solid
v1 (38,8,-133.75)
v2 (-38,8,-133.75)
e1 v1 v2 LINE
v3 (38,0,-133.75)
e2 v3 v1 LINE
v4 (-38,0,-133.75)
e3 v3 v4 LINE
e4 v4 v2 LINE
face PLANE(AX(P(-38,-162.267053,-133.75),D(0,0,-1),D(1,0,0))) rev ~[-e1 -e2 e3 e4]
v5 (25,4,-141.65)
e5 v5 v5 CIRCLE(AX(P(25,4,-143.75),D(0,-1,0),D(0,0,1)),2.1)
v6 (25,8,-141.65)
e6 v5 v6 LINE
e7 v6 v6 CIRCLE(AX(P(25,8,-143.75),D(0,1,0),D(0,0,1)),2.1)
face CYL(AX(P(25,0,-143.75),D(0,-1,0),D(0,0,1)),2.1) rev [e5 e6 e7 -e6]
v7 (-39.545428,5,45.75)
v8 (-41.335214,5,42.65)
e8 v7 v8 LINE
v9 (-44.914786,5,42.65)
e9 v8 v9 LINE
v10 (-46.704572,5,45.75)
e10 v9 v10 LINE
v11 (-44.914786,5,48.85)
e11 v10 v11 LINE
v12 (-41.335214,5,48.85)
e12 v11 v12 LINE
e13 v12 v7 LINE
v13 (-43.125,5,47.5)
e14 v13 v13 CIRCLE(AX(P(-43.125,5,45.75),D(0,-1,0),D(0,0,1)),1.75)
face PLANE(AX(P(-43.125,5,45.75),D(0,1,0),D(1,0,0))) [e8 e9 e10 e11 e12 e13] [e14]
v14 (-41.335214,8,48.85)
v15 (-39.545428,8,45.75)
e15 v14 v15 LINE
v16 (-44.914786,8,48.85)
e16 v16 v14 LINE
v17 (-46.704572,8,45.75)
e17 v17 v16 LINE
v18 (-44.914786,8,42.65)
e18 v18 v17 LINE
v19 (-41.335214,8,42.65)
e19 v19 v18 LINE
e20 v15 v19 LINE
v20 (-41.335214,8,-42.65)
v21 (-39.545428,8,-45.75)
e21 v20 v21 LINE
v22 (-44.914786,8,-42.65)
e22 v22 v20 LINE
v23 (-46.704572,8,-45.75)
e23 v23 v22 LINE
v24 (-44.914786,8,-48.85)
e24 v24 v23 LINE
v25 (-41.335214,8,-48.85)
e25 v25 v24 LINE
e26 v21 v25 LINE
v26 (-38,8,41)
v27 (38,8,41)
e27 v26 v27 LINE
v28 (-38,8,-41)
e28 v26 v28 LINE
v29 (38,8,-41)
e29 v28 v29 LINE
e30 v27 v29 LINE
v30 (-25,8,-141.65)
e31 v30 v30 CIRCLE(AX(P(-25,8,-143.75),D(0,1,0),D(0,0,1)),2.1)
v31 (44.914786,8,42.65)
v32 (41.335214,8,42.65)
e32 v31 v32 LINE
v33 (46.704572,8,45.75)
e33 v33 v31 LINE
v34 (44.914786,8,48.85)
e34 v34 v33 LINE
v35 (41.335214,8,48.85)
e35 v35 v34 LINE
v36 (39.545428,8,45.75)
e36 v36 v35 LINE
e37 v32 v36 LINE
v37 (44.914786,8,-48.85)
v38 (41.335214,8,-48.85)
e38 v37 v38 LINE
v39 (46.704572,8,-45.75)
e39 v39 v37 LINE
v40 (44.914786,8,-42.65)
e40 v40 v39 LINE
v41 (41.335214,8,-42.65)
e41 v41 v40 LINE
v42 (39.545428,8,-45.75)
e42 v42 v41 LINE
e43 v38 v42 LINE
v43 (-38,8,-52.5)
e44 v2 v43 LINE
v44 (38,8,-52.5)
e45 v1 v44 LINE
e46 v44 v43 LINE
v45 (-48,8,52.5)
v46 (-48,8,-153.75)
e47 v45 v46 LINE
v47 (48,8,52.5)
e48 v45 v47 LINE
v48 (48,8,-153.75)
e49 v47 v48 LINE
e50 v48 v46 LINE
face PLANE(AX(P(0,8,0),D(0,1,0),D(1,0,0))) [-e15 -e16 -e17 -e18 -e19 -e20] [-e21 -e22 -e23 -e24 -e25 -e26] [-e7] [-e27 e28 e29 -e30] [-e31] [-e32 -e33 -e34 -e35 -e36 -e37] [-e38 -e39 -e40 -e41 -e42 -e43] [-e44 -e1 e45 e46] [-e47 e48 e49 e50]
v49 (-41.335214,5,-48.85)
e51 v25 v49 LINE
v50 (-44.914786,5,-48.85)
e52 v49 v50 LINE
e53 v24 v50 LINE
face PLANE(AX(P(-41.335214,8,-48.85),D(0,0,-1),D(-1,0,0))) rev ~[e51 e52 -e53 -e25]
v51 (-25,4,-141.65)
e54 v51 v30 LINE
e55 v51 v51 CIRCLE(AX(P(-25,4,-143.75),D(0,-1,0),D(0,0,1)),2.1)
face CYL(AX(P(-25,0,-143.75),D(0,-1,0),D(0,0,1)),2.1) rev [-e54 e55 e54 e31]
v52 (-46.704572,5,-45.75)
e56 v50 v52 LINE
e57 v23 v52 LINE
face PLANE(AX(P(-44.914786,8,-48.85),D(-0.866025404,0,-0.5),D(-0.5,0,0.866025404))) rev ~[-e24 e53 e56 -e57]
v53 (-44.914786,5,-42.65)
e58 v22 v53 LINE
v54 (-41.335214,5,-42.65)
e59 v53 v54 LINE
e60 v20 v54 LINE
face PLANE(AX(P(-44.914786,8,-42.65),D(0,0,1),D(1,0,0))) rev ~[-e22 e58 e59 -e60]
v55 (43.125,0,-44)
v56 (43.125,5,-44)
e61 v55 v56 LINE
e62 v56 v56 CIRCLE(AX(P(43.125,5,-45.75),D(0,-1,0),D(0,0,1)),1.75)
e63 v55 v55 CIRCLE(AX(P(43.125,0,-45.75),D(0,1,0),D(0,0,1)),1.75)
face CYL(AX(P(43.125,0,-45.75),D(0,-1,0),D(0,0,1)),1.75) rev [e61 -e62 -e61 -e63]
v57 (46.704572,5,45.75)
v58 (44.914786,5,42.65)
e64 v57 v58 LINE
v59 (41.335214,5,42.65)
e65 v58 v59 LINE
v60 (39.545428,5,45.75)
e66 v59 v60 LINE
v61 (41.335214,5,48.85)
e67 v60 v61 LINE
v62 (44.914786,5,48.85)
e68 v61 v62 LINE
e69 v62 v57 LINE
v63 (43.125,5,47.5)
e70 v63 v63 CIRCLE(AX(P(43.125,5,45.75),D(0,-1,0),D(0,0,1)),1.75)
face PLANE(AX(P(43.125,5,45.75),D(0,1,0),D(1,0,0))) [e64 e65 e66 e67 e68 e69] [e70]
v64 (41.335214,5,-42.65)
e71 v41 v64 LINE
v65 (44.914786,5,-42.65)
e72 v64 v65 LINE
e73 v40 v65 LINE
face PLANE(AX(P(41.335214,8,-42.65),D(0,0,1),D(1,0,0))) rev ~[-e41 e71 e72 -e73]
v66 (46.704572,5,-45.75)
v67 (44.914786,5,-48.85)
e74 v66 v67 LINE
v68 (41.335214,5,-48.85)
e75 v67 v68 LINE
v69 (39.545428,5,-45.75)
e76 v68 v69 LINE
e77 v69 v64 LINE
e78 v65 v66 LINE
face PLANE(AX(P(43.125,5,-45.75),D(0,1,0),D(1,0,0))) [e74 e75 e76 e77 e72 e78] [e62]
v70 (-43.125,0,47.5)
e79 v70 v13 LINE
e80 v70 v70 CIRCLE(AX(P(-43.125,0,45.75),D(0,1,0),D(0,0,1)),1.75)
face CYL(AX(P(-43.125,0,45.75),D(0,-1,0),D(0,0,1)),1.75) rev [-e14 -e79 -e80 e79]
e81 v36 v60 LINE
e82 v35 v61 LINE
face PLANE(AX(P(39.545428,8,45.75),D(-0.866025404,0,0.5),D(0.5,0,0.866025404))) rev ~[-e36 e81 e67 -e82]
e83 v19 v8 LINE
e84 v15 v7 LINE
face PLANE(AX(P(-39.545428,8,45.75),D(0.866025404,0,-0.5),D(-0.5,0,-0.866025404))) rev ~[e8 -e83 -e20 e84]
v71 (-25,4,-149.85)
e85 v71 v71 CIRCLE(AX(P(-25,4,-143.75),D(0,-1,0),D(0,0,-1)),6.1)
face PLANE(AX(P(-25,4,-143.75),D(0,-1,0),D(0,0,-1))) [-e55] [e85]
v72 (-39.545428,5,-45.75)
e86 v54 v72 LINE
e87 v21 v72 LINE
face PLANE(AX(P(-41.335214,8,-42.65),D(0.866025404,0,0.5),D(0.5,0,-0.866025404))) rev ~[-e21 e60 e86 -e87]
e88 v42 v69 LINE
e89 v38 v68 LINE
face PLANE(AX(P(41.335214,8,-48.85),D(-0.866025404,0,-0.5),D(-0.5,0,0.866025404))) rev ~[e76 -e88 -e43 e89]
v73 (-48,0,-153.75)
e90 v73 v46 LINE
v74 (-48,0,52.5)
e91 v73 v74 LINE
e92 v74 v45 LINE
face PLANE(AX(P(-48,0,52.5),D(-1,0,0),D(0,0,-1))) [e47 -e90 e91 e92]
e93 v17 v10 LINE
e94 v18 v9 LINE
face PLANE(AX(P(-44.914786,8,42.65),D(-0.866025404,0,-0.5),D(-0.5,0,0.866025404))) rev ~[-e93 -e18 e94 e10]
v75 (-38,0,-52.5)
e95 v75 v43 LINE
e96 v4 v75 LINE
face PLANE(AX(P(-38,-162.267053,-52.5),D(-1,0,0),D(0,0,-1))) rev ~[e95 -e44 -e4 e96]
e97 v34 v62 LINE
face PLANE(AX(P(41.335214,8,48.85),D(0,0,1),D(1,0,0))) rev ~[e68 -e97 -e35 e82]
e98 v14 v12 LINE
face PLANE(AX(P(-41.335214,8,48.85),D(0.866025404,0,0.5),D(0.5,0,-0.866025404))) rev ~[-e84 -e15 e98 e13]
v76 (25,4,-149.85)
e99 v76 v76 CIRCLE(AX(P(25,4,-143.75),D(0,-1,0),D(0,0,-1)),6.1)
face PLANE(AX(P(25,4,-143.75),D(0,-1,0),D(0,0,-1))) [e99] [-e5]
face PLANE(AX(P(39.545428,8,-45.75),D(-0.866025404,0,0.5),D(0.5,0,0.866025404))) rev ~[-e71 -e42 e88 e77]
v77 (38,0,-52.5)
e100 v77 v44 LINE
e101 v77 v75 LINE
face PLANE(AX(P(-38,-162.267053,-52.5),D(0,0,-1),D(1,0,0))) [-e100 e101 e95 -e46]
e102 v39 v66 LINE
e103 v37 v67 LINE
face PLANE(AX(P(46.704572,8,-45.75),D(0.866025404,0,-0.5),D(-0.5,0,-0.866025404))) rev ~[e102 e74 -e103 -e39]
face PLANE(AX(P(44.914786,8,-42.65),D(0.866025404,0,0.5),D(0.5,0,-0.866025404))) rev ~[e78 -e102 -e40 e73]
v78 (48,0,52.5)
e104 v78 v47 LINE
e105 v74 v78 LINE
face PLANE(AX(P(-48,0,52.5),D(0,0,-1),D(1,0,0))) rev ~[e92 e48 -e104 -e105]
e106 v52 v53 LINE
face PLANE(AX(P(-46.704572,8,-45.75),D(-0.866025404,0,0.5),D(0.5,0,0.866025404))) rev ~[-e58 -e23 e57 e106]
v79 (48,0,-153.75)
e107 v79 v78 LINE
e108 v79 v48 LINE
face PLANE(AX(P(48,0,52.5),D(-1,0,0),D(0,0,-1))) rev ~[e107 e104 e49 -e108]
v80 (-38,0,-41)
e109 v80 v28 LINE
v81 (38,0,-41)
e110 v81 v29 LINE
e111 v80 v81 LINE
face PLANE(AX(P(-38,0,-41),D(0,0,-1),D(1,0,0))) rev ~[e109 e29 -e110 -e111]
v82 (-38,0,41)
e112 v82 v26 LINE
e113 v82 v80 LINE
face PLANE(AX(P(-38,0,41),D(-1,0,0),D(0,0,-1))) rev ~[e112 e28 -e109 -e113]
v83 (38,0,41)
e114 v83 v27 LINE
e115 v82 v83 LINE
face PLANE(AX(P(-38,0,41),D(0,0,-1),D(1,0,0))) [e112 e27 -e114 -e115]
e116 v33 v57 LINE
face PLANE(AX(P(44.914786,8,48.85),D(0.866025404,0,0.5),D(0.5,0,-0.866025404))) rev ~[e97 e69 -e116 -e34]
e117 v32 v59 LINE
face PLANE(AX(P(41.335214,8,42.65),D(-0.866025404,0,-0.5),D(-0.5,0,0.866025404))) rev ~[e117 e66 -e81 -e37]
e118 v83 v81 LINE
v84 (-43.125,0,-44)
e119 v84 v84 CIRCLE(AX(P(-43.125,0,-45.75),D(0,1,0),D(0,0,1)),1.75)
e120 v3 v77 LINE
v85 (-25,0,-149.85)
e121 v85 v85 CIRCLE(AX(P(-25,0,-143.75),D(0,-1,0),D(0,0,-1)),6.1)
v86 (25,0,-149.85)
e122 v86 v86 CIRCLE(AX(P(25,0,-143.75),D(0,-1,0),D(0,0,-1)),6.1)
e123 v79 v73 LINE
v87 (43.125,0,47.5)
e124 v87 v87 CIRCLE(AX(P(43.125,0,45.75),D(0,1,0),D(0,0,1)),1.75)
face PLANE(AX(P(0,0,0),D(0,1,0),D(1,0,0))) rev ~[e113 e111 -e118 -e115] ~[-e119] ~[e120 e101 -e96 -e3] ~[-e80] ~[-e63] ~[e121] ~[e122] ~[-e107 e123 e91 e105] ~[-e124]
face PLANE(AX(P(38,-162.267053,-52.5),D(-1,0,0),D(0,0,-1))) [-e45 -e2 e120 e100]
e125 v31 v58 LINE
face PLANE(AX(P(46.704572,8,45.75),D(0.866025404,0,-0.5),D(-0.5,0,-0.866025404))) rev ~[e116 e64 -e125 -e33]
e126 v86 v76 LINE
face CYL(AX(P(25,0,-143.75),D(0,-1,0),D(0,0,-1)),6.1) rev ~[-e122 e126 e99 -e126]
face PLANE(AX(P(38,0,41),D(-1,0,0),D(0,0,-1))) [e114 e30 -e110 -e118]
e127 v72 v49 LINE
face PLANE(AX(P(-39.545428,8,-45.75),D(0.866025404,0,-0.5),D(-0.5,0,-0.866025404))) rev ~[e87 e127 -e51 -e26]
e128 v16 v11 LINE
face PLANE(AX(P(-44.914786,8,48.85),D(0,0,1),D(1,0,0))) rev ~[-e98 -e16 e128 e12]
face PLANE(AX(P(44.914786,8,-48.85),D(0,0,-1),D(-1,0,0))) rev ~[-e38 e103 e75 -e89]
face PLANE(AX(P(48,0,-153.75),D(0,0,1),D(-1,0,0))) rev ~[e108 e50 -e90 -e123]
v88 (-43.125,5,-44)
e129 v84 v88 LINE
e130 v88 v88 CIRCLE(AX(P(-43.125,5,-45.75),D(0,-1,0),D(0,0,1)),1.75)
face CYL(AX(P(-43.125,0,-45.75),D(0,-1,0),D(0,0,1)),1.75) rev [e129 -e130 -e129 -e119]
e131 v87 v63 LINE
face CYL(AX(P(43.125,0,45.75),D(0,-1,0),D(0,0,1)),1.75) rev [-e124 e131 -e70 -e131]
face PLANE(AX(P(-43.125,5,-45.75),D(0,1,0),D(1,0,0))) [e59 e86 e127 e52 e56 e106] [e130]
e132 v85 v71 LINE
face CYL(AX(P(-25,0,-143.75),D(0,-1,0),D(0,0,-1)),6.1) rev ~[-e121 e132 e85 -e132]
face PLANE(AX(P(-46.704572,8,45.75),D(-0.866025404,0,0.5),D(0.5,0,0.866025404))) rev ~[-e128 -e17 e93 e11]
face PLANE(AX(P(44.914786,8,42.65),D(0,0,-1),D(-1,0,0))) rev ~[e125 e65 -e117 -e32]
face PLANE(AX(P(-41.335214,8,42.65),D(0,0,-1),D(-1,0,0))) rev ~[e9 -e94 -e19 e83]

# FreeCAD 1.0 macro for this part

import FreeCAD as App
import Part
import Sketcher
Q = App.Units.Quantity


def add_polygon(sketch, points):
    """Adds a closed chain of lines whose ends are joined by coincident constraints."""
    first, n = sketch.GeometryCount, len(points)
    for a, b in zip(points, points[1:] + points[:1]):
        sketch.addGeometry(Part.LineSegment(App.Vector(*a, 0), App.Vector(*b, 0)), False)
    for i in range(n):
        sketch.addConstraint(Sketcher.Constraint("Coincident", first + i, 2, first + (i + 1) % n, 1))

doc = App.newDocument("Part")
body = doc.addObject("PartDesign::Body", "Body")

sketch1 = body.newObject("Sketcher::SketchObject", "Sketch")
sketch1.AttachmentSupport = (doc.getObject("XZ_Plane"), [""])
sketch1.MapMode = "FlatFace"
add_polygon(sketch1, [(-48, -52.5), (-48, 52.5), (48, 52.5), (48, -52.5)])
sketch1.addGeometry(Part.Circle(App.Vector(-43.125, 45.75, 0), App.Vector(0, 0, 1), 1.75), False)
sketch1.addGeometry(Part.Circle(App.Vector(43.125, 45.75, 0), App.Vector(0, 0, 1), 1.75), False)
sketch1.addGeometry(Part.Circle(App.Vector(-43.125, -45.75, 0), App.Vector(0, 0, 1), 1.75), False)
add_polygon(sketch1, [(38, 41), (-38, 41), (-38, -41), (38, -41)])
sketch1.addGeometry(Part.Circle(App.Vector(43.125, -45.75, 0), App.Vector(0, 0, 1), 1.75), False)
sketch1.addConstraint(Sketcher.Constraint("Vertical", 0))
sketch1.addConstraint(Sketcher.Constraint("Horizontal", 1))
sketch1.addConstraint(Sketcher.Constraint("Vertical", 2))
sketch1.addConstraint(Sketcher.Constraint("Horizontal", 3))
sketch1.addConstraint(Sketcher.Constraint("Horizontal", 7))
sketch1.addConstraint(Sketcher.Constraint("Vertical", 8))
sketch1.addConstraint(Sketcher.Constraint("Horizontal", 9))
sketch1.addConstraint(Sketcher.Constraint("Vertical", 10))
sketch1.addConstraint(Sketcher.Constraint("Equal", 4, 5))
sketch1.addConstraint(Sketcher.Constraint("Equal", 5, 6))
sketch1.addConstraint(Sketcher.Constraint("Equal", 6, 11))
sketch1.addConstraint(Sketcher.Constraint("Symmetric", 5, 3, 6, 3, -1, 1))
sketch1.addConstraint(Sketcher.Constraint("Symmetric", 4, 3, 11, 3, -1, 1))
sketch1.addConstraint(Sketcher.Constraint("Symmetric", 0, 2, 2, 2, -1, 1))
sketch1.addConstraint(Sketcher.Constraint("Symmetric", 7, 2, 9, 2, -1, 1))
sketch1.addConstraint(Sketcher.Constraint("Symmetric", 4, 3, 5, 3, -2))
sketch1.addConstraint(Sketcher.Constraint("Diameter", 4, 3.5))
sketch1.addConstraint(Sketcher.Constraint("DistanceX", 1, 1, 1, 2, 96.0))
sketch1.addConstraint(Sketcher.Constraint("DistanceX", 7, 2, 7, 1, 76.0))
sketch1.addConstraint(Sketcher.Constraint("DistanceY", 0, 1, 0, 2, 105.0))
sketch1.addConstraint(Sketcher.Constraint("DistanceY", 8, 2, 8, 1, 82.0))
sketch1.addConstraint(Sketcher.Constraint("DistanceY", 6, 3, 4, 3, 91.5))
sketch1.addConstraint(Sketcher.Constraint("DistanceX", 4, 3, 5, 3, 86.25))
pad1 = body.newObject("PartDesign::Pad", "Pad")
pad1.Profile = sketch1
pad1.Length = 8
pad1.Reversed = True

sketch2 = body.newObject("Sketcher::SketchObject", "Sketch001")
sketch2.AttachmentSupport = (doc.getObject("XZ_Plane"), [""])
sketch2.MapMode = "FlatFace"
add_polygon(sketch2, [(-48, 52.5), (48, 52.5), (48, -153.75), (-48, -153.75)])
sketch2.addGeometry(Part.Circle(App.Vector(-43.125, 45.75, 0), App.Vector(0, 0, 1), 1.75), False)
sketch2.addGeometry(Part.Circle(App.Vector(43.125, 45.75, 0), App.Vector(0, 0, 1), 1.75), False)
sketch2.addGeometry(Part.Circle(App.Vector(-43.125, -45.75, 0), App.Vector(0, 0, 1), 1.75), False)
add_polygon(sketch2, [(38, 41), (-38, 41), (-38, -41), (38, -41)])
sketch2.addGeometry(Part.Circle(App.Vector(43.125, -45.75, 0), App.Vector(0, 0, 1), 1.75), False)
sketch2.addGeometry(Part.Circle(App.Vector(25, -143.75, 0), App.Vector(0, 0, 1), 2.1), False)
sketch2.addGeometry(Part.Circle(App.Vector(-25, -143.75, 0), App.Vector(0, 0, 1), 2.1), False)
sketch2.addConstraint(Sketcher.Constraint("Horizontal", 0))
sketch2.addConstraint(Sketcher.Constraint("Vertical", 1))
sketch2.addConstraint(Sketcher.Constraint("Horizontal", 2))
sketch2.addConstraint(Sketcher.Constraint("Vertical", 3))
sketch2.addConstraint(Sketcher.Constraint("Horizontal", 7))
sketch2.addConstraint(Sketcher.Constraint("Vertical", 8))
sketch2.addConstraint(Sketcher.Constraint("Horizontal", 9))
sketch2.addConstraint(Sketcher.Constraint("Vertical", 10))
sketch2.addConstraint(Sketcher.Constraint("Equal", 4, 5))
sketch2.addConstraint(Sketcher.Constraint("Equal", 5, 6))
sketch2.addConstraint(Sketcher.Constraint("Equal", 6, 11))
sketch2.addConstraint(Sketcher.Constraint("Equal", 12, 13))
sketch2.addConstraint(Sketcher.Constraint("Symmetric", 5, 3, 6, 3, -1, 1))
sketch2.addConstraint(Sketcher.Constraint("Symmetric", 4, 3, 11, 3, -1, 1))
sketch2.addConstraint(Sketcher.Constraint("Symmetric", 7, 2, 9, 2, -1, 1))
sketch2.addConstraint(Sketcher.Constraint("Symmetric", 4, 3, 5, 3, -2))
sketch2.addConstraint(Sketcher.Constraint("Symmetric", 12, 3, 13, 3, -2))
sketch2.addConstraint(Sketcher.Constraint("Diameter", 4, 3.5))
sketch2.addConstraint(Sketcher.Constraint("Diameter", 12, 4.2))
sketch2.addConstraint(Sketcher.Constraint("DistanceX", 0, 1, 0, 2, 96.0))
sketch2.addConstraint(Sketcher.Constraint("DistanceX", 7, 2, 7, 1, 76.0))
sketch2.addConstraint(Sketcher.Constraint("DistanceY", 8, 2, 8, 1, 82.0))
sketch2.addConstraint(Sketcher.Constraint("DistanceX", -1, 1, 12, 3, 25.0))
sketch2.addConstraint(Sketcher.Constraint("DistanceX", -1, 1, 0, 2, 48.0))
sketch2.addConstraint(Sketcher.Constraint("DistanceY", 12, 3, 11, 3, 98.0))
sketch2.addConstraint(Sketcher.Constraint("DistanceY", 1, 2, 12, 3, 10.0))
sketch2.addConstraint(Sketcher.Constraint("DistanceY", 1, 2, 1, 1, 206.25))
sketch2.addConstraint(Sketcher.Constraint("DistanceY", -1, 1, 0, 2, 52.5))
sketch2.addConstraint(Sketcher.Constraint("DistanceX", 4, 3, 5, 3, 86.25))
pad2 = body.newObject("PartDesign::Pad", "Pad001")
pad2.Profile = sketch2
pad2.Length = 8
pad2.Reversed = True

sketch3 = body.newObject("Sketcher::SketchObject", "Sketch002")
sketch3.AttachmentSupport = (doc.getObject("XZ_Plane"), [""])
sketch3.MapMode = "FlatFace"
add_polygon(sketch3, [(-38, -133.75), (-38, -52.5), (38, -52.5), (38, -133.75)])
sketch3.addConstraint(Sketcher.Constraint("Vertical", 0))
sketch3.addConstraint(Sketcher.Constraint("Horizontal", 1))
sketch3.addConstraint(Sketcher.Constraint("Vertical", 2))
sketch3.addConstraint(Sketcher.Constraint("Horizontal", 3))
sketch3.addConstraint(Sketcher.Constraint("DistanceX", 1, 1, 1, 2, 76.0))
sketch3.addConstraint(Sketcher.Constraint("DistanceX", 0, 2, -1, 1, 38.0))
sketch3.addConstraint(Sketcher.Constraint("DistanceY", 0, 1, 0, 2, 81.25))
sketch3.addConstraint(Sketcher.Constraint("DistanceY", 0, 2, -1, 1, 52.5))
pocket1 = body.newObject("PartDesign::Pocket", "Pocket")
pocket1.Profile = sketch3
pocket1.Type = "ThroughAll"
pocket1.Midplane = True

sketch4 = body.newObject("Sketcher::SketchObject", "Sketch003")
sketch4.AttachmentSupport = (doc.getObject("XZ_Plane"), [""])
sketch4.MapMode = "FlatFace"
sketch4.addGeometry(Part.Circle(App.Vector(-25, -143.75, 0), App.Vector(0, 0, 1), 6.1), False)
sketch4.addGeometry(Part.Circle(App.Vector(25, -143.75, 0), App.Vector(0, 0, 1), 6.1), False)
sketch4.addConstraint(Sketcher.Constraint("Equal", 0, 1))
sketch4.addConstraint(Sketcher.Constraint("Symmetric", 0, 3, 1, 3, -2))
sketch4.addConstraint(Sketcher.Constraint("Diameter", 0, 12.2))
sketch4.addConstraint(Sketcher.Constraint("DistanceX", 0, 3, -1, 1, 25.0))
sketch4.addConstraint(Sketcher.Constraint("DistanceY", 0, 3, -1, 1, 143.75))
pocket2 = body.newObject("PartDesign::Pocket", "Pocket001")
pocket2.Profile = sketch4
pocket2.Length = 4

sketch5 = body.newObject("Sketcher::SketchObject", "Sketch004")
sketch5.AttachmentSupport = (doc.getObject("XZ_Plane"), [""])
sketch5.MapMode = "FlatFace"
sketch5.AttachmentOffset = App.Placement(App.Vector(0, 0, -8), App.Rotation())
add_polygon(sketch5, [(-39.545428, -45.75), (-41.335214, -48.85), (-44.914786, -48.85), (-46.704572, -45.75), (-44.914786, -42.65), (-41.335214, -42.65)])
add_polygon(sketch5, [(39.545428, -45.75), (41.335214, -42.65), (44.914786, -42.65), (46.704572, -45.75), (44.914786, -48.85), (41.335214, -48.85)])
add_polygon(sketch5, [(39.545428, 45.75), (41.335214, 48.85), (44.914786, 48.85), (46.704572, 45.75), (44.914786, 42.65), (41.335214, 42.65)])
add_polygon(sketch5, [(-39.545428, 45.75), (-41.335214, 42.65), (-44.914786, 42.65), (-46.704572, 45.75), (-44.914786, 48.85), (-41.335214, 48.85)])
sketch5.addConstraint(Sketcher.Constraint("Horizontal", 1))
sketch5.addConstraint(Sketcher.Constraint("Horizontal", 4))
sketch5.addConstraint(Sketcher.Constraint("Horizontal", 7))
sketch5.addConstraint(Sketcher.Constraint("Horizontal", 10))
sketch5.addConstraint(Sketcher.Constraint("Horizontal", 13))
sketch5.addConstraint(Sketcher.Constraint("Horizontal", 16))
sketch5.addConstraint(Sketcher.Constraint("Horizontal", 19))
sketch5.addConstraint(Sketcher.Constraint("Horizontal", 22))
sketch5.addConstraint(Sketcher.Constraint("Symmetric", 0, 2, 12, 2, -1, 1))
sketch5.addConstraint(Sketcher.Constraint("Symmetric", 2, 2, 14, 2, -1, 1))
sketch5.addConstraint(Sketcher.Constraint("Symmetric", 3, 2, 15, 2, -1, 1))
sketch5.addConstraint(Sketcher.Constraint("Symmetric", 5, 2, 17, 2, -1, 1))
sketch5.addConstraint(Sketcher.Constraint("Symmetric", 6, 2, 18, 2, -1, 1))
sketch5.addConstraint(Sketcher.Constraint("Symmetric", 8, 2, 20, 2, -1, 1))
sketch5.addConstraint(Sketcher.Constraint("Symmetric", 9, 2, 21, 2, -1, 1))
sketch5.addConstraint(Sketcher.Constraint("Symmetric", 11, 2, 23, 2, -1, 1))
sketch5.addConstraint(Sketcher.Constraint("Symmetric", 4, 2, 6, 2, -2))
sketch5.addConstraint(Sketcher.Constraint("Symmetric", 2, 2, 8, 2, -2))
sketch5.addConstraint(Sketcher.Constraint("Symmetric", 1, 2, 9, 2, -2))
sketch5.addConstraint(Sketcher.Constraint("Symmetric", 5, 2, 11, 2, -2))
sketch5.addConstraint(Sketcher.Constraint("Parallel", 0, 3))
sketch5.addConstraint(Sketcher.Constraint("Parallel", 2, 5))
sketch5.addConstraint(Sketcher.Constraint("Parallel", 3, 6))
sketch5.addConstraint(Sketcher.Constraint("Parallel", 5, 8))
sketch5.addConstraint(Sketcher.Constraint("Parallel", 8, 11))
sketch5.addConstraint(Sketcher.Constraint("Parallel", 11, 14))
sketch5.addConstraint(Sketcher.Constraint("Parallel", 14, 17))
sketch5.addConstraint(Sketcher.Constraint("Parallel", 17, 20))
sketch5.addConstraint(Sketcher.Constraint("Parallel", 20, 23))
sketch5.addConstraint(Sketcher.Constraint("Horizontal", 2, 2, 5, 2))
sketch5.addConstraint(Sketcher.Constraint("Vertical", 1, 2, 3, 2))
sketch5.addConstraint(Sketcher.Constraint("Angle", 0, Q("-120 deg")))
sketch5.addConstraint(Sketcher.Constraint("DistanceY", 1, 2, 2, 2, 3.1))
sketch5.addConstraint(Sketcher.Constraint("DistanceY", 6, 2, 12, 2, 91.5))
sketch5.addConstraint(Sketcher.Constraint("DistanceX", 3, 2, 6, 2, 86.25))
sketch5.addConstraint(Sketcher.Constraint("DistanceX", 1, 2, 1, 1, 3.579572))
pocket3 = body.newObject("PartDesign::Pocket", "Pocket002")
pocket3.Profile = sketch5
pocket3.Length = 3
pocket3.Reversed = True

doc.recompute()
